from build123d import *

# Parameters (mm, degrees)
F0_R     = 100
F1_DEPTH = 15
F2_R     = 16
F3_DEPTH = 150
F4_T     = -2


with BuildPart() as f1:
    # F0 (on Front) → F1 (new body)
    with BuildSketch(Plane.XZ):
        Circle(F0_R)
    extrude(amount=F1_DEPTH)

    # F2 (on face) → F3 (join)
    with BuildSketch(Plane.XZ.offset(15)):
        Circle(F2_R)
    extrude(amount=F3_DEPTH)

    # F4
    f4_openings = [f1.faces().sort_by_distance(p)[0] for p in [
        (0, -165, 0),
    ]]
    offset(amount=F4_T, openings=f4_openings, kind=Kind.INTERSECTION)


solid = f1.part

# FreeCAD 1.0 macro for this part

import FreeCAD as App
import Part
import Sketcher


def faces_at(feature, points):
    """Names of the faces that lie closest to the given points."""
    faces = feature.Shape.Faces
    near = lambda p: min(range(len(faces)), key=lambda i: faces[i].distToShape(Part.Vertex(*p))[0])
    return sorted({f"Face{near(p) + 1}" for p in points})

doc = App.newDocument("Part")
params = doc.addObject("Spreadsheet::Sheet", "Params")
for row, (alias, value) in enumerate([
    ("sketch1_diameter", "200 mm"),
    ("pad1_length", "15 mm"),
    ("sketch2_diameter", "32 mm"),
    ("pad2_length", "150 mm"),
    ("thickness_wall", "2 mm"),
], start=1):
    params.set(f"A{row}", alias)
    params.set(f"B{row}", "=" + value)
    params.setAlias(f"B{row}", alias)

body = doc.addObject("PartDesign::Body", "Body")

# Sketch on XZ plane
sketch1 = body.newObject("Sketcher::SketchObject", "Sketch")
sketch1.AttachmentSupport = (doc.getObject("XZ_Plane"), [""])
sketch1.MapMode = "FlatFace"
sketch1.addGeometry(Part.Circle(App.Vector(0, 0, 0), App.Vector(0, 0, 1), 100), False)
sketch1.addConstraint([
    Sketcher.Constraint("Coincident", 0, 3, -1, 1),
    Sketcher.Constraint("Diameter", 0, 200.0),
])
sketch1.setExpression("Constraints[1]", "Params.sketch1_diameter")
pad1 = body.newObject("PartDesign::Pad", "Pad")
pad1.Profile = sketch1
pad1.setExpression("Length", "Params.pad1_length")

# Sketch on XZ plane
sketch2 = body.newObject("Sketcher::SketchObject", "Sketch001")
sketch2.AttachmentSupport = (doc.getObject("XZ_Plane"), [""])
sketch2.MapMode = "FlatFace"
sketch2.AttachmentOffset = App.Placement(App.Vector(0, 0, 15), App.Rotation())
sketch2.addGeometry(Part.Circle(App.Vector(0, 0, 0), App.Vector(0, 0, 1), 16), False)
sketch2.addConstraint([
    Sketcher.Constraint("Coincident", 0, 3, -1, 1),
    Sketcher.Constraint("Diameter", 0, 32.0),
])
sketch2.setExpression("Constraints[1]", "Params.sketch2_diameter")
pad2 = body.newObject("PartDesign::Pad", "Pad001")
pad2.Profile = sketch2
pad2.setExpression("Length", "Params.pad2_length")
doc.recompute()

thickness = body.newObject("PartDesign::Thickness", "Thickness")
thickness.Base = (pad2, faces_at(pad2, [(0, -165, 0)]))
thickness.setExpression("Value", "Params.thickness_wall")
thickness.Reversed = True
thickness.Join = "Intersection"

doc.recompute()
